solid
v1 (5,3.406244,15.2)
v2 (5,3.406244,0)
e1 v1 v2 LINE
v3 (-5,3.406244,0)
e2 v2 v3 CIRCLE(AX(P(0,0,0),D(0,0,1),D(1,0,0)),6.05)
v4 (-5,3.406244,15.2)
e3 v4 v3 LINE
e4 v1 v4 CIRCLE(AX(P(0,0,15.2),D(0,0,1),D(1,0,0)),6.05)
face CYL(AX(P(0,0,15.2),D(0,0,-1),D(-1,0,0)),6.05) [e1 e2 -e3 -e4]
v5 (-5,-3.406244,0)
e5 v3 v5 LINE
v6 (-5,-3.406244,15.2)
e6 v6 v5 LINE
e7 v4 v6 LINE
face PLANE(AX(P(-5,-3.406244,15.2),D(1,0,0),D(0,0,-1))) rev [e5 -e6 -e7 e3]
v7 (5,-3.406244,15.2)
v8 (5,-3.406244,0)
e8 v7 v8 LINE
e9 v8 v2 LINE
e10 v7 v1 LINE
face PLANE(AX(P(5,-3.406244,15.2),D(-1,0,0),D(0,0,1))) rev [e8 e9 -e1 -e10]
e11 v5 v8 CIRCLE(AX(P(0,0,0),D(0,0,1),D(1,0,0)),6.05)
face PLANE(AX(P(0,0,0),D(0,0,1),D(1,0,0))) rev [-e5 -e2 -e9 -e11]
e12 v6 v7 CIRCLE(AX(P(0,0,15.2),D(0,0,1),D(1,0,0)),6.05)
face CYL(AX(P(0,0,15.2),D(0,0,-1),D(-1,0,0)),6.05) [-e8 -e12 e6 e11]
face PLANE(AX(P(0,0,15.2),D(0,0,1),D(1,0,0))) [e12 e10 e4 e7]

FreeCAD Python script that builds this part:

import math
import FreeCAD as App
import Part
import Sketcher

V = App.Vector

doc = App.newDocument("Part")
params = doc.addObject("Spreadsheet::Sheet", "Params")
for row, (alias, value) in enumerate([
    ("sketch1_radius", "6.05 mm"),
    ("pad1_length", "15.2 mm"),
], start=1):
    params.set(f"A{row}", alias)
    params.set(f"B{row}", "=" + value)
    params.setAlias(f"B{row}", alias)

body = doc.addObject("PartDesign::Body", "Body")

# Sketch on XY plane
sketch1 = body.newObject("Sketcher::SketchObject", "Sketch")
sketch1.AttachmentSupport = (doc.getObject("XY_Plane"), [""])
sketch1.MapMode = "FlatFace"
sketch1.addGeometry(Part.LineSegment(V(-5, 3.406244, 0), V(-5, -3.406244, 0)), False)
sketch1.addGeometry(Part.ArcOfCircle(Part.Circle(V(0, 0, 0), V(0, 0, 1), 6.05), math.radians(-145.735397), math.radians(-34.264603)), False)
sketch1.addGeometry(Part.LineSegment(V(5, -3.406244, 0), V(5, 3.406244, 0)), False)
sketch1.addGeometry(Part.ArcOfCircle(Part.Circle(V(0, 0, 0), V(0, 0, 1), 6.05), math.radians(34.264603), math.radians(145.735397)), False)
sketch1.addConstraint(Sketcher.Constraint("Coincident", 0, 2, 1, 1))
sketch1.addConstraint(Sketcher.Constraint("Coincident", 1, 2, 2, 1))
sketch1.addConstraint(Sketcher.Constraint("Coincident", 2, 2, 3, 1))
sketch1.addConstraint(Sketcher.Constraint("Coincident", 3, 2, 0, 1))
sketch1.addConstraint(Sketcher.Constraint("Vertical", 0))
sketch1.addConstraint(Sketcher.Constraint("Vertical", 2))
sketch1.addConstraint(Sketcher.Constraint("Coincident", 1, 3, -1, 1))
sketch1.addConstraint(Sketcher.Constraint("Coincident", 3, 3, -1, 1))
sketch1.addConstraint(Sketcher.Constraint("Equal", 1, 3))
sketch1.addConstraint(Sketcher.Constraint("Horizontal", 0, 2, 1, 2))
sketch1.addConstraint(Sketcher.Constraint("Radius", 1, 6.05))
sketch1.addConstraint(Sketcher.Constraint("DistanceX", 0, 2, -1, 1, 5.0))
sketch1.setExpression("Constraints[10]", "Params.sketch1_radius")
pad1 = body.newObject("PartDesign::Pad", "Pad")
pad1.Profile = sketch1
pad1.setExpression("Length", "Params.pad1_length")

doc.recompute()
